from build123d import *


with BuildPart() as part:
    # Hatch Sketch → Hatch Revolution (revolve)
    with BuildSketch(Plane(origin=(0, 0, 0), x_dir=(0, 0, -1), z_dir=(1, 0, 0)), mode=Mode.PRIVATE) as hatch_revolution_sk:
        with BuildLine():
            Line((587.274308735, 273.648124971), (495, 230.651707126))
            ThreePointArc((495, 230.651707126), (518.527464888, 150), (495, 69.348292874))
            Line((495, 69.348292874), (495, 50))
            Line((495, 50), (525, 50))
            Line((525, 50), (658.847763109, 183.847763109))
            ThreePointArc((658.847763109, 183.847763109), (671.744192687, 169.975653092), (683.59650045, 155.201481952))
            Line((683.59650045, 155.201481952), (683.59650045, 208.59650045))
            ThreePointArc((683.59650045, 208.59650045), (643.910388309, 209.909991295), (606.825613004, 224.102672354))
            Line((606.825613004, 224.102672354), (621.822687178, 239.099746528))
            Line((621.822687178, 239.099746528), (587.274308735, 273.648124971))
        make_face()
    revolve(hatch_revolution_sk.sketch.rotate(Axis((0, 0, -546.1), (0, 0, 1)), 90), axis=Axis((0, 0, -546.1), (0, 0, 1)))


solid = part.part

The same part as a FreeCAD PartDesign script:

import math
import FreeCAD as App
import Part
import Sketcher
from FreeCAD import Vector
Q = App.Units.Quantity

doc = App.newDocument("Part")
params = doc.addObject("Spreadsheet::Sheet", "Params")
for row, (alias, value) in enumerate([
    ("sketch1_radius", "150 mm"),
    ("sketch1_radius2", "260 mm"),
    ("sketch1_radius3", "120 mm"),
    ("sketch1_height", "30 mm"),
    ("sketch1_length", "101.8 mm"),
    ("revolution_angle", "360 deg"),
], start=1):
    params.set(f"A{row}", alias)
    params.set(f"B{row}", "=" + value)
    params.setAlias(f"B{row}", alias)

body = doc.addObject("PartDesign::Body", "Body")

# Sketch on YZ plane
sketch1 = doc.addObject("Sketcher::SketchObject", "Sketch")
body.addObject(sketch1)
sketch1.AttachmentSupport = (doc.YZ_Plane, [""])
sketch1.MapMode = "FlatFace"
sketch1.addGeometry([
    Part.LineSegment(Vector(273.648125, -587.274309, 0), Vector(230.651707, -495, 0)),  # 0
    Part.ArcOfCircle(Part.Circle(Vector(150, -368.527465, 0), Vector(0, 0, 1), 150), math.radians(-122.525713), math.radians(-57.474287)),  # 1
    Part.LineSegment(Vector(69.348293, -495, 0), Vector(50, -495, 0)),  # 2
    Part.LineSegment(Vector(50, -495, 0), Vector(50, -525, 0)),  # 3
    Part.LineSegment(Vector(50, -525, 0), Vector(183.847763, -658.847763, 0)),  # 4
    Part.ArcOfCircle(Part.Circle(Vector(0, -475, 0), Vector(0, 0, 1), 260), math.radians(-53.349747), math.radians(-45)),  # 5
    Part.LineSegment(Vector(155.201482, -683.5965, 0), Vector(208.5965, -683.5965, 0)),  # 6
    Part.ArcOfCircle(Part.Circle(Vector(327.534675, -667.668204, 0), Vector(0, 0, 1), 120), math.radians(149.534358), math.radians(187.627713)),  # 7
    Part.LineSegment(Vector(224.102672, -606.825613, 0), Vector(239.099747, -621.822687, 0)),  # 8
    Part.LineSegment(Vector(239.099747, -621.822687, 0), Vector(273.648125, -587.274309, 0)),  # 9
], False)
sketch1.addConstraint([
    Sketcher.Constraint("Coincident", 0, 2, 1, 2),
    Sketcher.Constraint("Coincident", 1, 1, 2, 1),
    Sketcher.Constraint("Coincident", 2, 2, 3, 1),
    Sketcher.Constraint("Coincident", 3, 2, 4, 1),
    Sketcher.Constraint("Coincident", 4, 2, 5, 2),
    Sketcher.Constraint("Coincident", 5, 1, 6, 1),
    Sketcher.Constraint("Coincident", 6, 2, 7, 2),
    Sketcher.Constraint("Coincident", 7, 1, 8, 1),
    Sketcher.Constraint("Coincident", 8, 2, 9, 1),
    Sketcher.Constraint("Coincident", 9, 2, 0, 1),
    Sketcher.Constraint("Horizontal", 2),
    Sketcher.Constraint("Vertical", 3),
    Sketcher.Constraint("Horizontal", 6),
    Sketcher.Constraint("PointOnObject", 5, 3, -2),
    Sketcher.Constraint("Parallel", 4, 8),
    Sketcher.Constraint("Perpendicular", 8, 9),
    Sketcher.Constraint("Horizontal", 0, 2, 1, 1),
    Sketcher.Constraint("Radius", 1, Q("150 mm")),
    Sketcher.Constraint("Radius", 5, Q("260 mm")),
    Sketcher.Constraint("Radius", 7, Q("120 mm")),
    Sketcher.Constraint("DistanceY", 3, 2, 3, 1, Q("30 mm")),
    Sketcher.Constraint("Angle", 4, Q("-45 deg")),
    Sketcher.Constraint("DistanceX", -1, 1, 1, 3, Q("150 mm")),
    Sketcher.Constraint("DistanceY", 5, 3, -1, 1, Q("475 mm")),
    Sketcher.Constraint("DistanceY", 0, 2, -1, 1, Q("495 mm")),
    Sketcher.Constraint("DistanceX", -1, 1, 2, 2, Q("50 mm")),
    Sketcher.Constraint("Distance", 0, Q("101.8 mm")),
    Sketcher.Constraint("DistanceX", 6, 1, 6, 2, Q("53.395018 mm")),
    Sketcher.Constraint("DistanceY", 5, 1, -1, 1, Q("683.5965 mm")),
    Sketcher.Constraint("DistanceX", 2, 2, 2, 1, Q("19.348293 mm")),
    Sketcher.Constraint("DistanceY", 9, 2, -1, 1, Q("587.274309 mm")),
    Sketcher.Constraint("DistanceY", 7, 3, 1, 3, Q("299.140739 mm")),
    Sketcher.Constraint("DistanceX", 4, 2, 7, 1, Q("40.254909 mm")),
])
sketch1.setExpression("Constraints[17]", "Params.sketch1_radius")
sketch1.setExpression("Constraints[18]", "Params.sketch1_radius2")
sketch1.setExpression("Constraints[19]", "Params.sketch1_radius3")
sketch1.setExpression("Constraints[20]", "Params.sketch1_height")
sketch1.setExpression("Constraints[26]", "Params.sketch1_length")
revolution = doc.addObject("PartDesign::Revolution", "Revolution")
body.addObject(revolution)
revolution.Profile = sketch1
revolution.ReferenceAxis = (sketch1, ["V_Axis"])
revolution.setExpression("Angle", "Params.revolution_angle")

doc.recompute()
